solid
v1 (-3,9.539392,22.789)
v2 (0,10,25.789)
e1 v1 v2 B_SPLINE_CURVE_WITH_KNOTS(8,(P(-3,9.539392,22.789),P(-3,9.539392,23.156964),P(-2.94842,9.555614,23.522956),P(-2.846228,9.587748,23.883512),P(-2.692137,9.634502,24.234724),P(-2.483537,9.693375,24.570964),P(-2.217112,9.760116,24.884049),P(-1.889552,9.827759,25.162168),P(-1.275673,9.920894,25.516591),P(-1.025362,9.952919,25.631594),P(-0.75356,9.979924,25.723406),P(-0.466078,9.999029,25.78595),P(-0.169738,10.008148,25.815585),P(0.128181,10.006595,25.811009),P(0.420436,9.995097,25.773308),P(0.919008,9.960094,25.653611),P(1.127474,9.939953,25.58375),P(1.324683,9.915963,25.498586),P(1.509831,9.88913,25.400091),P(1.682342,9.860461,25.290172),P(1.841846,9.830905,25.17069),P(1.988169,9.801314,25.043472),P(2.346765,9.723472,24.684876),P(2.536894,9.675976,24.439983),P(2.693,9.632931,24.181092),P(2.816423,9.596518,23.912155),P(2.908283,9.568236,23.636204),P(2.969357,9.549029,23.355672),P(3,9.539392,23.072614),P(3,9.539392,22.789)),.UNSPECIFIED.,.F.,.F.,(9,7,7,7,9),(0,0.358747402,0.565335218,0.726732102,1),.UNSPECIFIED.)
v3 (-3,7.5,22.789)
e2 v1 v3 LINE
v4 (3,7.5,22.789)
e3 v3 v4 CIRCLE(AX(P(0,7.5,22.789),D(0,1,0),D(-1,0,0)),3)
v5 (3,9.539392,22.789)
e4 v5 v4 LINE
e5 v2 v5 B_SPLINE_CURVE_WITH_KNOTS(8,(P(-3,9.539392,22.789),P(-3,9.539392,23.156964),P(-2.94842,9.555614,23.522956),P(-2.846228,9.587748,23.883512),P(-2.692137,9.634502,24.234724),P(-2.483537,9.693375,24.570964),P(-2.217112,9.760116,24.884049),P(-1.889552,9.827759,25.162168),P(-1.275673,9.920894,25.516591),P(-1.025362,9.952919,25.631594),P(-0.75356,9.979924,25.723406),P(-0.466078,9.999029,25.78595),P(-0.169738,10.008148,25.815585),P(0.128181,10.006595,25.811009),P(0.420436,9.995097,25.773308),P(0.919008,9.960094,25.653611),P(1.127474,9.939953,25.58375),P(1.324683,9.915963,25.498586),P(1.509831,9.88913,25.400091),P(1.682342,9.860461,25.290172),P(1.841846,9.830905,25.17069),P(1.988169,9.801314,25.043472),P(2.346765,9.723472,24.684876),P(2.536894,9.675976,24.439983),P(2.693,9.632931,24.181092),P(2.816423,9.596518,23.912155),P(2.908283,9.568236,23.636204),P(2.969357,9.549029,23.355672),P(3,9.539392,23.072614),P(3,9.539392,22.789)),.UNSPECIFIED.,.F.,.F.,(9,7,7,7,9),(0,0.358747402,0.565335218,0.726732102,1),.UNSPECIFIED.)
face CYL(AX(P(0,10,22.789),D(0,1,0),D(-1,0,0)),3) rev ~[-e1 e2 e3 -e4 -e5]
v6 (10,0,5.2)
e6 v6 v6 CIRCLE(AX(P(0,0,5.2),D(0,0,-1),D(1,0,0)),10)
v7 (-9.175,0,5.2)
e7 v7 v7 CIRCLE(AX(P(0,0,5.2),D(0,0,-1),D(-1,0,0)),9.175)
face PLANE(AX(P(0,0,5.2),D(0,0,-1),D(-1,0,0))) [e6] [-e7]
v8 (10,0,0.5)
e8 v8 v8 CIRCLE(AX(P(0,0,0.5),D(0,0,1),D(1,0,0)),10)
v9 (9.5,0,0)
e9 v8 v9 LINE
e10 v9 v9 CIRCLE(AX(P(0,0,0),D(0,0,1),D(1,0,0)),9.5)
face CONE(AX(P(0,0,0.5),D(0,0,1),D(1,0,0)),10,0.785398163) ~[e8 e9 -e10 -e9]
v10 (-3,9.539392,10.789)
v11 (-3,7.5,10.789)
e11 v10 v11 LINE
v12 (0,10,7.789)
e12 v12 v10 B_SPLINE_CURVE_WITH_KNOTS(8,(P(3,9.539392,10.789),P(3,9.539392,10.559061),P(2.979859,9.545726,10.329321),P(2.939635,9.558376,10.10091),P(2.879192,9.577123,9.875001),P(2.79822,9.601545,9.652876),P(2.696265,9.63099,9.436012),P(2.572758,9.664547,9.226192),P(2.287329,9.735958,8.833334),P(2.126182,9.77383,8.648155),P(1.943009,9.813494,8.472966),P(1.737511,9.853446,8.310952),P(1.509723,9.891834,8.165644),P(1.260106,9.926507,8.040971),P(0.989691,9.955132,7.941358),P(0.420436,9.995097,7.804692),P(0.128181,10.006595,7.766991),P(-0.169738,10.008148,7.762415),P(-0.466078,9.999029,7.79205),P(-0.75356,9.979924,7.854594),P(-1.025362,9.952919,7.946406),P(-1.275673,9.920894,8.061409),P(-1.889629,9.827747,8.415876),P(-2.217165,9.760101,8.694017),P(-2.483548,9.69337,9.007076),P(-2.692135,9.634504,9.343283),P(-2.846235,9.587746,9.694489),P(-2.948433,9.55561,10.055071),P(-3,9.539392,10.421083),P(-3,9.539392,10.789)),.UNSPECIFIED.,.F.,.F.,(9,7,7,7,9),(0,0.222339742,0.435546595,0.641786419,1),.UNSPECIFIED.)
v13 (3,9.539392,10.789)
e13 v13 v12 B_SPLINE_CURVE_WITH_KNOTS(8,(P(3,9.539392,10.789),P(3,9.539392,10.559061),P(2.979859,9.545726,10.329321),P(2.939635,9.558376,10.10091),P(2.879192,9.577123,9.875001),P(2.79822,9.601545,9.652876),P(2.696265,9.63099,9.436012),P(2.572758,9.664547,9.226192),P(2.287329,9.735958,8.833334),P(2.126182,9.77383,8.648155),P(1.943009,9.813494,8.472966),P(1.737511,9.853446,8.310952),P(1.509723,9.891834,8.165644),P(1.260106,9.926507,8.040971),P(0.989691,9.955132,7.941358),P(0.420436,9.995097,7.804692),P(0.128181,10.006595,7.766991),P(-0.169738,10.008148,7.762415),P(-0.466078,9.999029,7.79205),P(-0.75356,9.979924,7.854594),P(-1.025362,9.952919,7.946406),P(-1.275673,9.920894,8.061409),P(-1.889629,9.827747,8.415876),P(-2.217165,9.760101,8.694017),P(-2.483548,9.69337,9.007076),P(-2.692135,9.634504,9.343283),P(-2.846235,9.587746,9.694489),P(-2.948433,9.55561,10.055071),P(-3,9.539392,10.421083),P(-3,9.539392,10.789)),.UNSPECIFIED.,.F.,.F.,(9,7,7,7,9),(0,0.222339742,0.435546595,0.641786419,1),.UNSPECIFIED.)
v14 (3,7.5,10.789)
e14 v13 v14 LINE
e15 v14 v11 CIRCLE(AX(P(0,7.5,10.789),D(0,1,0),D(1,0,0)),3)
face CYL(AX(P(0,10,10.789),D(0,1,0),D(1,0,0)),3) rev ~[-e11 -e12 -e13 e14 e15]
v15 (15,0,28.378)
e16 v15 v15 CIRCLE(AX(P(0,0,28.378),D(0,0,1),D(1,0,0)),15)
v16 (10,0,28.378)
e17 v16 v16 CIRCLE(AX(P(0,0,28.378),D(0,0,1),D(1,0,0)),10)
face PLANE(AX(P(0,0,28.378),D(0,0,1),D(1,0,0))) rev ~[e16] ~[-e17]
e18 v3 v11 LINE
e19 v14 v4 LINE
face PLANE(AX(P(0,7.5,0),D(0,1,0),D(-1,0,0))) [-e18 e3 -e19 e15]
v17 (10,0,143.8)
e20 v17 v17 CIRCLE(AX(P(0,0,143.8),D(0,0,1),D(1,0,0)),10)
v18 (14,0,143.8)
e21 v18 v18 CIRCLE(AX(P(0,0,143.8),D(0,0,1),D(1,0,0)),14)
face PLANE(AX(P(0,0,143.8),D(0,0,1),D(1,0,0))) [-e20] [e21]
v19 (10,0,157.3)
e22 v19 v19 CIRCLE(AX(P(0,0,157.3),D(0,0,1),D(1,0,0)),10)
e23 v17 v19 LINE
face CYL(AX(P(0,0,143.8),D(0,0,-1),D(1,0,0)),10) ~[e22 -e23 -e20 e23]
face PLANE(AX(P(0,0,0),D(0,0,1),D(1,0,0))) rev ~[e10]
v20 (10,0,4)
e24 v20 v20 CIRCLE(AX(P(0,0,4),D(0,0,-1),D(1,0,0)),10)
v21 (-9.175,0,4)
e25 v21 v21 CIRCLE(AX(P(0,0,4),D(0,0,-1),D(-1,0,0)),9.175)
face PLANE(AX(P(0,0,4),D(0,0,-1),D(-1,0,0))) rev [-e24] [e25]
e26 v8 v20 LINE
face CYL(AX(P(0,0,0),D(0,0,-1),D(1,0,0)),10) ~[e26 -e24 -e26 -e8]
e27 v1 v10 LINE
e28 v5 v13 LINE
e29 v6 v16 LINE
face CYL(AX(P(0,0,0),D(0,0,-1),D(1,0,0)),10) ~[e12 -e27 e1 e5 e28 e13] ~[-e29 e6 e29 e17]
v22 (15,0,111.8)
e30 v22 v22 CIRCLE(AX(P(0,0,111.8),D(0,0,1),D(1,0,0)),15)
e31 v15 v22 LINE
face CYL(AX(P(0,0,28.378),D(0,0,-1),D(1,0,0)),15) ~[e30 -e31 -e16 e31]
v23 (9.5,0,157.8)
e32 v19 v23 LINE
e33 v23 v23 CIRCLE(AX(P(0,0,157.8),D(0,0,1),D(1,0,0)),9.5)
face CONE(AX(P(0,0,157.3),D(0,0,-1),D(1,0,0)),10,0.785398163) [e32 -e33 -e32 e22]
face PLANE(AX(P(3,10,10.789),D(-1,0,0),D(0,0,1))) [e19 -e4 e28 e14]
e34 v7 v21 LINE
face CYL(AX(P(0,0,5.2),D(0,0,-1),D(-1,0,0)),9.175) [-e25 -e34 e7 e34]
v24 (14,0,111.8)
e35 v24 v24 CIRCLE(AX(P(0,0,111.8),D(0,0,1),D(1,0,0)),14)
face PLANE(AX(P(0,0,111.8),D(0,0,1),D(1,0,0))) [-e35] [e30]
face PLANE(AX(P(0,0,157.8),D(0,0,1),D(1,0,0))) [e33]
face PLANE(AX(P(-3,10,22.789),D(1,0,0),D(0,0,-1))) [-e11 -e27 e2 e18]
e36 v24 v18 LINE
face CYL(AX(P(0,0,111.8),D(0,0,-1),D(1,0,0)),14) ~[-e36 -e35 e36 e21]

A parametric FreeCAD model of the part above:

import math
import FreeCAD as App
import Part
import Sketcher

V = App.Vector


def edges_at(feature, points):
    """Names of the edges that pass closest to the given points."""
    edges = feature.Shape.Edges
    near = lambda p: min(range(len(edges)), key=lambda i: edges[i].distToShape(Part.Vertex(*p))[0])
    return sorted({f"Edge{near(p) + 1}" for p in points})

doc = App.newDocument("Part")
params = doc.addObject("Spreadsheet::Sheet", "Params")
for row, (alias, value) in enumerate([
    ("sketch1_diameter", "20 mm"),
    ("pad1_length", "28.378 mm"),
    ("sketch2_diameter", "30 mm"),
    ("pad2_length", "83.422 mm"),
    ("sketch3_diameter", "28 mm"),
    ("pad3_length", "32 mm"),
    ("sketch4_diameter", "20 mm"),
    ("pad4_length", "14 mm"),
    ("sketch5_radius", "3 mm"),
    ("sketch5_height", "12 mm"),
    ("pocket1_length", "2.5 mm"),
    ("chamfer_size", "0.5 mm"),
    ("sketch6_height", "1.2 mm"),
    ("groove_angle", "360 deg"),
], start=1):
    params.set(f"A{row}", alias)
    params.set(f"B{row}", "=" + value)
    params.setAlias(f"B{row}", alias)

body = doc.addObject("PartDesign::Body", "Body")

sketch1 = body.newObject("Sketcher::SketchObject", "Sketch")
sketch1.AttachmentSupport = (doc.getObject("XY_Plane"), [""])
sketch1.MapMode = "FlatFace"
sketch1.addGeometry(Part.Circle(V(0, 0, 0), V(0, 0, 1), 10), False)
sketch1.addConstraint(Sketcher.Constraint("Coincident", 0, 3, -1, 1))
sketch1.addConstraint(Sketcher.Constraint("Diameter", 0, 20.0))
sketch1.setExpression("Constraints[1]", "Params.sketch1_diameter")
pad1 = body.newObject("PartDesign::Pad", "Pad")
pad1.Profile = sketch1
pad1.setExpression("Length", "Params.pad1_length")

sketch2 = body.newObject("Sketcher::SketchObject", "Sketch001")
sketch2.AttachmentSupport = (doc.getObject("XY_Plane"), [""])
sketch2.MapMode = "FlatFace"
sketch2.AttachmentOffset = App.Placement(V(0, 0, 28.378), App.Rotation())
sketch2.addGeometry(Part.Circle(V(0, 0, 0), V(0, 0, 1), 15), False)
sketch2.addConstraint(Sketcher.Constraint("Coincident", 0, 3, -1, 1))
sketch2.addConstraint(Sketcher.Constraint("Diameter", 0, 30.0))
sketch2.setExpression("Constraints[1]", "Params.sketch2_diameter")
pad2 = body.newObject("PartDesign::Pad", "Pad001")
pad2.Profile = sketch2
pad2.setExpression("Length", "Params.pad2_length")

sketch3 = body.newObject("Sketcher::SketchObject", "Sketch002")
sketch3.AttachmentSupport = (doc.getObject("XY_Plane"), [""])
sketch3.MapMode = "FlatFace"
sketch3.AttachmentOffset = App.Placement(V(0, 0, 111.8), App.Rotation())
sketch3.addGeometry(Part.Circle(V(0, 0, 0), V(0, 0, 1), 14), False)
sketch3.addConstraint(Sketcher.Constraint("Coincident", 0, 3, -1, 1))
sketch3.addConstraint(Sketcher.Constraint("Diameter", 0, 28.0))
sketch3.setExpression("Constraints[1]", "Params.sketch3_diameter")
pad3 = body.newObject("PartDesign::Pad", "Pad002")
pad3.Profile = sketch3
pad3.setExpression("Length", "Params.pad3_length")

sketch4 = body.newObject("Sketcher::SketchObject", "Sketch003")
sketch4.AttachmentSupport = (doc.getObject("XY_Plane"), [""])
sketch4.MapMode = "FlatFace"
sketch4.AttachmentOffset = App.Placement(V(0, 0, 143.8), App.Rotation())
sketch4.addGeometry(Part.Circle(V(0, 0, 0), V(0, 0, 1), 10), False)
sketch4.addConstraint(Sketcher.Constraint("Coincident", 0, 3, -1, 1))
sketch4.addConstraint(Sketcher.Constraint("Diameter", 0, 20.0))
sketch4.setExpression("Constraints[1]", "Params.sketch4_diameter")
pad4 = body.newObject("PartDesign::Pad", "Pad003")
pad4.Profile = sketch4
pad4.setExpression("Length", "Params.pad4_length")

sketch5 = body.newObject("Sketcher::SketchObject", "Sketch004")
sketch5.AttachmentSupport = (doc.getObject("XZ_Plane"), [""])
sketch5.MapMode = "FlatFace"
sketch5.AttachmentOffset = App.Placement(V(0, 0, -10), App.Rotation())
sketch5.addGeometry(Part.ArcOfCircle(Part.Circle(V(0, 22.789, 0), V(0, 0, 1), 3), math.radians(0), math.radians(180)), False)
sketch5.addGeometry(Part.LineSegment(V(3, 22.789, 0), V(3, 10.789, 0)), False)
sketch5.addGeometry(Part.ArcOfCircle(Part.Circle(V(0, 10.789, 0), V(0, 0, 1), 3), math.radians(180), math.radians(360)), False)
sketch5.addGeometry(Part.LineSegment(V(-3, 10.789, 0), V(-3, 22.789, 0)), False)
sketch5.addConstraint(Sketcher.Constraint("Tangent", 0, 1, 1, 1))
sketch5.addConstraint(Sketcher.Constraint("Tangent", 1, 2, 2, 2))
sketch5.addConstraint(Sketcher.Constraint("Tangent", 2, 1, 3, 1))
sketch5.addConstraint(Sketcher.Constraint("Tangent", 3, 2, 0, 2))
sketch5.addConstraint(Sketcher.Constraint("Vertical", 1))
sketch5.addConstraint(Sketcher.Constraint("Vertical", 3))
sketch5.addConstraint(Sketcher.Constraint("PointOnObject", 0, 3, -2))
sketch5.addConstraint(Sketcher.Constraint("Radius", 0, 3.0))
sketch5.addConstraint(Sketcher.Constraint("DistanceY", 1, 2, 1, 1, 12.0))
sketch5.addConstraint(Sketcher.Constraint("DistanceY", -1, 1, 0, 3, 22.789))
sketch5.setExpression("Constraints[7]", "Params.sketch5_radius")
sketch5.setExpression("Constraints[8]", "Params.sketch5_height")
pocket1 = body.newObject("PartDesign::Pocket", "Pocket")
pocket1.Profile = sketch5
pocket1.setExpression("Length", "Params.pocket1_length")
pocket1.Reversed = True
doc.recompute()

chamfer = body.newObject("PartDesign::Chamfer", "Chamfer")
chamfer.Base = (pocket1, edges_at(pocket1, [(-10, 0, 0), (-10, 0, 157.8)]))
chamfer.setExpression("Size", "Params.chamfer_size")

sketch6 = body.newObject("Sketcher::SketchObject", "Sketch005")
sketch6.AttachmentSupport = (doc.getObject("XZ_Plane"), [""])
sketch6.MapMode = "FlatFace"
sketch6.addGeometry(Part.LineSegment(V(-14.4109, 4, 0), V(-14.4109, 5.2, 0)), False)
sketch6.addGeometry(Part.LineSegment(V(-14.4109, 5.2, 0), V(-9.175, 5.2, 0)), False)
sketch6.addGeometry(Part.LineSegment(V(-9.175, 5.2, 0), V(-9.175, 4, 0)), False)
sketch6.addGeometry(Part.LineSegment(V(-9.175, 4, 0), V(-14.4109, 4, 0)), False)
sketch6.addConstraint(Sketcher.Constraint("Coincident", 0, 2, 1, 1))
sketch6.addConstraint(Sketcher.Constraint("Coincident", 1, 2, 2, 1))
sketch6.addConstraint(Sketcher.Constraint("Coincident", 2, 2, 3, 1))
sketch6.addConstraint(Sketcher.Constraint("Coincident", 3, 2, 0, 1))
sketch6.addConstraint(Sketcher.Constraint("Vertical", 0))
sketch6.addConstraint(Sketcher.Constraint("Horizontal", 1))
sketch6.addConstraint(Sketcher.Constraint("Vertical", 2))
sketch6.addConstraint(Sketcher.Constraint("Horizontal", 3))
sketch6.addConstraint(Sketcher.Constraint("DistanceY", 0, 1, 0, 2, 1.2))
sketch6.addConstraint(Sketcher.Constraint("DistanceY", -1, 1, 2, 2, 4.0))
sketch6.addConstraint(Sketcher.Constraint("DistanceX", 1, 1, 1, 2, 5.236))
sketch6.addConstraint(Sketcher.Constraint("DistanceX", 1, 2, -1, 1, 9.175))
sketch6.setExpression("Constraints[8]", "Params.sketch6_height")
groove = body.newObject("PartDesign::Groove", "Groove")
groove.Profile = sketch6
groove.ReferenceAxis = (sketch6, ["V_Axis"])
groove.setExpression("Angle", "Params.groove_angle")

doc.recompute()
